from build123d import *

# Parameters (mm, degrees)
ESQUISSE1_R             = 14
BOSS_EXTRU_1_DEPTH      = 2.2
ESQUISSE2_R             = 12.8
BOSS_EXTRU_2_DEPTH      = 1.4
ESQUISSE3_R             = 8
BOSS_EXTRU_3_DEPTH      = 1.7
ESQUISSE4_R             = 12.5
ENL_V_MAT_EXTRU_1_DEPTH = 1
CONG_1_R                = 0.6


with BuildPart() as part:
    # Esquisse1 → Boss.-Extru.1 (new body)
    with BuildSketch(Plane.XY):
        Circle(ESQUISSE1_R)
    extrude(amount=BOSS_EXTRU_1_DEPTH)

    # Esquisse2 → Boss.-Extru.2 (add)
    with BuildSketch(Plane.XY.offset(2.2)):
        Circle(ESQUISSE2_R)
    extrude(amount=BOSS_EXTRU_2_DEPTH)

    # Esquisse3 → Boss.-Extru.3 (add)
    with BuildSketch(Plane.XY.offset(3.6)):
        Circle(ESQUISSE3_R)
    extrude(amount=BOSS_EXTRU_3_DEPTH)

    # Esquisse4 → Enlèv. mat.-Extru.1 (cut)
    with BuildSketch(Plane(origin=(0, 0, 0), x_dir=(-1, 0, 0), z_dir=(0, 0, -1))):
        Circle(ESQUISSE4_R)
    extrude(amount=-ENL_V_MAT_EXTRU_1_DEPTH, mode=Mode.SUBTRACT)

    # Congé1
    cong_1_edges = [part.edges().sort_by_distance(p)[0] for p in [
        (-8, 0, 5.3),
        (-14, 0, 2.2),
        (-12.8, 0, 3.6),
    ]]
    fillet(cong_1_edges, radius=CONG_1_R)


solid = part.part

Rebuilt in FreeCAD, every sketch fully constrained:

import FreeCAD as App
import Part
import Sketcher
from FreeCAD import Vector
Q = App.Units.Quantity


def edges_at(feature, points):
    """Names of the edges that pass closest to the given points."""
    edges = feature.Shape.Edges
    near = lambda p: min(range(len(edges)), key=lambda i: edges[i].distToShape(Part.Vertex(*p))[0])
    return sorted({f"Edge{near(p) + 1}" for p in points})

doc = App.newDocument("Part")
body = doc.addObject("PartDesign::Body", "Body")

# Sketch on XY plane
sketch1 = body.newObject("Sketcher::SketchObject", "Sketch")
sketch1.AttachmentSupport = (doc.getObject("XY_Plane"), [""])
sketch1.MapMode = "FlatFace"
sketch1.addGeometry(Part.Circle(Vector(0, 0, 0), Vector(0, 0, 1), 14), False)
sketch1.addConstraint([
    Sketcher.Constraint("Coincident", 0, 3, -1, 1),
    Sketcher.Constraint("Diameter", 0, Q("28 mm")),
])
pad1 = body.newObject("PartDesign::Pad", "Pad")
pad1.Profile = sketch1
pad1.Length = 2.2

# Sketch on XY plane
sketch2 = body.newObject("Sketcher::SketchObject", "Sketch001")
sketch2.AttachmentSupport = (doc.getObject("XY_Plane"), [""])
sketch2.MapMode = "FlatFace"
sketch2.AttachmentOffset = App.Placement(Vector(0, 0, 2.2), App.Rotation())
sketch2.addGeometry(Part.Circle(Vector(0, 0, 0), Vector(0, 0, 1), 12.8), False)
sketch2.addConstraint([
    Sketcher.Constraint("Coincident", 0, 3, -1, 1),
    Sketcher.Constraint("Diameter", 0, Q("25.6 mm")),
])
pad2 = body.newObject("PartDesign::Pad", "Pad001")
pad2.Profile = sketch2
pad2.Length = 1.4

# Sketch on XY plane
sketch3 = body.newObject("Sketcher::SketchObject", "Sketch002")
sketch3.AttachmentSupport = (doc.getObject("XY_Plane"), [""])
sketch3.MapMode = "FlatFace"
sketch3.AttachmentOffset = App.Placement(Vector(0, 0, 3.6), App.Rotation())
sketch3.addGeometry(Part.Circle(Vector(0, 0, 0), Vector(0, 0, 1), 8), False)
sketch3.addConstraint([
    Sketcher.Constraint("Coincident", 0, 3, -1, 1),
    Sketcher.Constraint("Diameter", 0, Q("16 mm")),
])
pad3 = body.newObject("PartDesign::Pad", "Pad002")
pad3.Profile = sketch3
pad3.Length = 1.7

# Sketch on XY plane
sketch4 = body.newObject("Sketcher::SketchObject", "Sketch003")
sketch4.AttachmentSupport = (doc.getObject("XY_Plane"), [""])
sketch4.MapMode = "FlatFace"
sketch4.addGeometry(Part.Circle(Vector(0, 0, 0), Vector(0, 0, 1), 12.5), False)
sketch4.addConstraint([
    Sketcher.Constraint("Coincident", 0, 3, -1, 1),
    Sketcher.Constraint("Diameter", 0, Q("25 mm")),
])
pocket1 = body.newObject("PartDesign::Pocket", "Pocket")
pocket1.Profile = sketch4
pocket1.Length = 1
pocket1.Reversed = True
doc.recompute()

fillet = body.newObject("PartDesign::Fillet", "Fillet")
fillet.Base = (pocket1, edges_at(pocket1, [(-8, 0, 5.3), (-14, 0, 2.2), (-12.8, 0, 3.6)]))
fillet.Radius = 0.6

doc.recompute()
